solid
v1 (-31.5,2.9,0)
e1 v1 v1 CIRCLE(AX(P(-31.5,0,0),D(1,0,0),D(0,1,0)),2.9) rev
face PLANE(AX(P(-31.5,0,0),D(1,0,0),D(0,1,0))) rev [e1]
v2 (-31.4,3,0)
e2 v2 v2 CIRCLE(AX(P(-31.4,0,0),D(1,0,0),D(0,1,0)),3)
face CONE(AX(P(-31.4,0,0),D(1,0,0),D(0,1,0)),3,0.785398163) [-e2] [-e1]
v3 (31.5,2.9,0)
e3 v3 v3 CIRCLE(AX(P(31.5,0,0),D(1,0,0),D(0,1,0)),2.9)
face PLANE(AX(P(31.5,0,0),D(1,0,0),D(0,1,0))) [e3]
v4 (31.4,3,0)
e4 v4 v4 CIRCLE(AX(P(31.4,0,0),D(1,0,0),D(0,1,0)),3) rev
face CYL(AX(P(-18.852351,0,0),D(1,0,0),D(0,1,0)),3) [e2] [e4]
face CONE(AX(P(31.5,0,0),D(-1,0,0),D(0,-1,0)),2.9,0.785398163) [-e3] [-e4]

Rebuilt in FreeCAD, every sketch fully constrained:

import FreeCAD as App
import Part
import Sketcher

V = App.Vector
Q = App.Units.Quantity


def edges_at(feature, points):
    """Names of the edges that pass closest to the given points."""
    edges = feature.Shape.Edges
    near = lambda p: min(range(len(edges)), key=lambda i: edges[i].distToShape(Part.Vertex(*p))[0])
    return sorted({f"Edge{near(p) + 1}" for p in points})

doc = App.newDocument("Part")
body = doc.addObject("PartDesign::Body", "Body")

# Sketch on XY plane
sketch1 = body.newObject("Sketcher::SketchObject", "Sketch")
sketch1.AttachmentSupport = (doc.getObject("XY_Plane"), [""])
sketch1.MapMode = "FlatFace"
sketch1.addGeometry(Part.LineSegment(V(-31.5, 3, 0), V(-31.5, 0, 0)), False)
sketch1.addGeometry(Part.LineSegment(V(-31.5, 0, 0), V(31.5, 0, 0)), False)
sketch1.addGeometry(Part.LineSegment(V(31.5, 0, 0), V(31.5, 3, 0)), False)
sketch1.addGeometry(Part.LineSegment(V(31.5, 3, 0), V(-31.5, 3, 0)), False)
sketch1.addConstraint(Sketcher.Constraint("Coincident", 0, 2, 1, 1))
sketch1.addConstraint(Sketcher.Constraint("Coincident", 1, 2, 2, 1))
sketch1.addConstraint(Sketcher.Constraint("Coincident", 2, 2, 3, 1))
sketch1.addConstraint(Sketcher.Constraint("Coincident", 3, 2, 0, 1))
sketch1.addConstraint(Sketcher.Constraint("Vertical", 0))
sketch1.addConstraint(Sketcher.Constraint("Horizontal", 1))
sketch1.addConstraint(Sketcher.Constraint("Vertical", 2))
sketch1.addConstraint(Sketcher.Constraint("Horizontal", 3))
sketch1.addConstraint(Sketcher.Constraint("Symmetric", 0, 2, 1, 2, -1, 1))
sketch1.addConstraint(Sketcher.Constraint("DistanceX", 1, 1, 1, 2, Q("63 mm")))
sketch1.addConstraint(Sketcher.Constraint("DistanceY", 0, 2, 0, 1, Q("3 mm")))
revolution = body.newObject("PartDesign::Revolution", "Revolution")
revolution.Profile = sketch1
revolution.ReferenceAxis = (sketch1, ["H_Axis"])
revolution.Angle = 360
doc.recompute()

chamfer = body.newObject("PartDesign::Chamfer", "Chamfer")
chamfer.Base = (revolution, edges_at(revolution, [(-31.5, -3, 0), (31.5, -3, 0)]))
chamfer.Size = 0.1

doc.recompute()
